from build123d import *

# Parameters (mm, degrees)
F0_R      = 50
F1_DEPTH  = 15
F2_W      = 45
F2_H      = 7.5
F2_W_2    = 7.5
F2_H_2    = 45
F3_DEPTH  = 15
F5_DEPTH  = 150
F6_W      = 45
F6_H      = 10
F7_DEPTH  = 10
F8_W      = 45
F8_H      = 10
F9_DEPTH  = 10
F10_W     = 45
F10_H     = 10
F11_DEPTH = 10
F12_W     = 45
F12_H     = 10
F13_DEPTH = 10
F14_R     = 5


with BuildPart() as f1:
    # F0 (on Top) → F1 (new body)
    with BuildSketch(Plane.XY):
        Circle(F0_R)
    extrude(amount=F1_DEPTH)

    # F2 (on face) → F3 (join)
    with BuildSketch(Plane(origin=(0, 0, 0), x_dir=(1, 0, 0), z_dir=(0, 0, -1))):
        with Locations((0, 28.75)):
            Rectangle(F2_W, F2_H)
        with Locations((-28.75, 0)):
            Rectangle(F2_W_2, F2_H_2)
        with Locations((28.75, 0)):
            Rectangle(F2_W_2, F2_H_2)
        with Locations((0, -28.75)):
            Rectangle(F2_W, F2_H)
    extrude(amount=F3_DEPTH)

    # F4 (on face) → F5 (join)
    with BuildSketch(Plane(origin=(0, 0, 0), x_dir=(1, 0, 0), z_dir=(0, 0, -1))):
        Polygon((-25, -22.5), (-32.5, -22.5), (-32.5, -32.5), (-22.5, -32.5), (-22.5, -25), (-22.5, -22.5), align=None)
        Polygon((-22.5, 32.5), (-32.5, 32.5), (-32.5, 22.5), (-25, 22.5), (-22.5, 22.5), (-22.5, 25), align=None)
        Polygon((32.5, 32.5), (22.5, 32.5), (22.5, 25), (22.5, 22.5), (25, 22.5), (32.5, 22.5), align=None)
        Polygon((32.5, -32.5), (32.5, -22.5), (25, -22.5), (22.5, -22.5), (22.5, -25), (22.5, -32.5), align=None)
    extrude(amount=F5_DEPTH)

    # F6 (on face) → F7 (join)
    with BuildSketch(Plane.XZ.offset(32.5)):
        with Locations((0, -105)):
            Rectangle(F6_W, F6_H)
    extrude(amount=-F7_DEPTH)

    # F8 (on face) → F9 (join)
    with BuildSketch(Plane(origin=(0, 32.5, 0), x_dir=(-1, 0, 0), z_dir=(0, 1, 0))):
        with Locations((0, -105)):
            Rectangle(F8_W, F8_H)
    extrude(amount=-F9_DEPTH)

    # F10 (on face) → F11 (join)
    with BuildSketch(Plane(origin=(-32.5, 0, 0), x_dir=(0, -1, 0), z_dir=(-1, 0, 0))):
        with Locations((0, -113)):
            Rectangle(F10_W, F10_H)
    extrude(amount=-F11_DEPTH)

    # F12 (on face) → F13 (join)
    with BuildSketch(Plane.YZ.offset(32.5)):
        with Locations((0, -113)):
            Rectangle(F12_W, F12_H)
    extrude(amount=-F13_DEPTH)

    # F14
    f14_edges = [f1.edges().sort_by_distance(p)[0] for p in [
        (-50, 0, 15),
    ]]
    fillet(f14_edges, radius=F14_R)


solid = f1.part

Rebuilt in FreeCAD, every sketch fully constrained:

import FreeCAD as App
import Part
import Sketcher
Q = App.Units.Quantity


def edges_at(feature, points):
    """Names of the edges that pass closest to the given points."""
    edges = feature.Shape.Edges
    near = lambda p: min(range(len(edges)), key=lambda i: edges[i].distToShape(Part.Vertex(*p))[0])
    return sorted({f"Edge{near(p) + 1}" for p in points})

doc = App.newDocument("Part")
body = doc.addObject("PartDesign::Body", "Body")

# Sketch on XY plane
sketch1 = body.newObject("Sketcher::SketchObject", "Sketch")
sketch1.AttachmentSupport = (doc.getObject("XY_Plane"), [""])
sketch1.MapMode = "FlatFace"
sketch1.addGeometry(Part.Circle(App.Vector(0, 0, 0), App.Vector(0, 0, 1), 50), False)
sketch1.addConstraint([
    Sketcher.Constraint("Coincident", 0, 3, -1, 1),
    Sketcher.Constraint("Diameter", 0, Q("100 mm")),
])
pad1 = body.newObject("PartDesign::Pad", "Pad")
pad1.Profile = sketch1
pad1.Length = 15

# Sketch on XY plane
sketch2 = body.newObject("Sketcher::SketchObject", "Sketch001")
sketch2.AttachmentSupport = (doc.getObject("XY_Plane"), [""])
sketch2.MapMode = "FlatFace"
sketch2.addGeometry([
    Part.LineSegment(App.Vector(-22, -32, 0), App.Vector(-22, -25, 0)),  # 0
    Part.LineSegment(App.Vector(-22, -25, 0), App.Vector(22, -25, 0)),  # 1
    Part.LineSegment(App.Vector(22, -25, 0), App.Vector(22, -32, 0)),  # 2
    Part.LineSegment(App.Vector(22, -32, 0), App.Vector(-22, -32, 0)),  # 3
    Part.LineSegment(App.Vector(-32, -22, 0), App.Vector(-32, 22, 0)),  # 4
    Part.LineSegment(App.Vector(-32, 22, 0), App.Vector(-25, 22, 0)),  # 5
    Part.LineSegment(App.Vector(-25, 22, 0), App.Vector(-25, -22, 0)),  # 6
    Part.LineSegment(App.Vector(-25, -22, 0), App.Vector(-32, -22, 0)),  # 7
    Part.LineSegment(App.Vector(25, -22, 0), App.Vector(25, 22, 0)),  # 8
    Part.LineSegment(App.Vector(25, 22, 0), App.Vector(32, 22, 0)),  # 9
    Part.LineSegment(App.Vector(32, 22, 0), App.Vector(32, -22, 0)),  # 10
    Part.LineSegment(App.Vector(32, -22, 0), App.Vector(25, -22, 0)),  # 11
    Part.LineSegment(App.Vector(-22, 25, 0), App.Vector(-22, 32, 0)),  # 12
    Part.LineSegment(App.Vector(-22, 32, 0), App.Vector(22, 32, 0)),  # 13
    Part.LineSegment(App.Vector(22, 32, 0), App.Vector(22, 25, 0)),  # 14
    Part.LineSegment(App.Vector(22, 25, 0), App.Vector(-22, 25, 0)),  # 15
], False)
sketch2.addConstraint([
    Sketcher.Constraint("Coincident", 0, 2, 1, 1),
    Sketcher.Constraint("Coincident", 1, 2, 2, 1),
    Sketcher.Constraint("Coincident", 2, 2, 3, 1),
    Sketcher.Constraint("Coincident", 3, 2, 0, 1),
    Sketcher.Constraint("Coincident", 4, 2, 5, 1),
    Sketcher.Constraint("Coincident", 5, 2, 6, 1),
    Sketcher.Constraint("Coincident", 6, 2, 7, 1),
    Sketcher.Constraint("Coincident", 7, 2, 4, 1),
    Sketcher.Constraint("Coincident", 8, 2, 9, 1),
    Sketcher.Constraint("Coincident", 9, 2, 10, 1),
    Sketcher.Constraint("Coincident", 10, 2, 11, 1),
    Sketcher.Constraint("Coincident", 11, 2, 8, 1),
    Sketcher.Constraint("Coincident", 12, 2, 13, 1),
    Sketcher.Constraint("Coincident", 13, 2, 14, 1),
    Sketcher.Constraint("Coincident", 14, 2, 15, 1),
    Sketcher.Constraint("Coincident", 15, 2, 12, 1),
    Sketcher.Constraint("Vertical", 0),
    Sketcher.Constraint("Horizontal", 1),
    Sketcher.Constraint("Vertical", 2),
    Sketcher.Constraint("Horizontal", 3),
    Sketcher.Constraint("Vertical", 4),
    Sketcher.Constraint("Horizontal", 5),
    Sketcher.Constraint("Vertical", 6),
    Sketcher.Constraint("Horizontal", 7),
    Sketcher.Constraint("Vertical", 8),
    Sketcher.Constraint("Horizontal", 9),
    Sketcher.Constraint("Vertical", 10),
    Sketcher.Constraint("Horizontal", 11),
    Sketcher.Constraint("Vertical", 12),
    Sketcher.Constraint("Horizontal", 13),
    Sketcher.Constraint("Vertical", 14),
    Sketcher.Constraint("Horizontal", 15),
    Sketcher.Constraint("Symmetric", 6, 2, 8, 2, -1, 1),
    Sketcher.Constraint("Symmetric", 4, 2, 10, 2, -1, 1),
    Sketcher.Constraint("Symmetric", 2, 2, 12, 2, -1, 1),
    Sketcher.Constraint("Symmetric", 0, 2, 14, 2, -1, 1),
    Sketcher.Constraint("Horizontal", 5, 2, 8, 2),
    Sketcher.Constraint("Vertical", 3, 2, 12, 2),
    Sketcher.Constraint("Equal", 11, 0),
    Sketcher.Constraint("Equal", 15, 4),
    Sketcher.Constraint("DistanceX", 1, 1, 1, 2, Q("45 mm")),
    Sketcher.Constraint("DistanceX", 5, 1, 5, 2, Q("7.5 mm")),
    Sketcher.Constraint("DistanceY", 0, 2, -1, 1, Q("25 mm")),
    Sketcher.Constraint("DistanceX", 5, 2, -1, 1, Q("25 mm")),
])
pad2 = body.newObject("PartDesign::Pad", "Pad001")
pad2.Profile = sketch2
pad2.Length = 15
pad2.Reversed = True

# Sketch on XY plane
sketch3 = body.newObject("Sketcher::SketchObject", "Sketch002")
sketch3.AttachmentSupport = (doc.getObject("XY_Plane"), [""])
sketch3.MapMode = "FlatFace"
sketch3.addGeometry([
    Part.LineSegment(App.Vector(-32, 22, 0), App.Vector(-32, 32, 0)),  # 0
    Part.LineSegment(App.Vector(-32, 32, 0), App.Vector(-22, 32, 0)),  # 1
    Part.LineSegment(App.Vector(-22, 32, 0), App.Vector(-22, 22, 0)),  # 2
    Part.LineSegment(App.Vector(-22, 22, 0), App.Vector(-32, 22, 0)),  # 3
    Part.LineSegment(App.Vector(-22, -32, 0), App.Vector(-32, -32, 0)),  # 4
    Part.LineSegment(App.Vector(-32, -32, 0), App.Vector(-32, -22, 0)),  # 5
    Part.LineSegment(App.Vector(-32, -22, 0), App.Vector(-22, -22, 0)),  # 6
    Part.LineSegment(App.Vector(-22, -22, 0), App.Vector(-22, -32, 0)),  # 7
    Part.LineSegment(App.Vector(32, -32, 0), App.Vector(22, -32, 0)),  # 8
    Part.LineSegment(App.Vector(22, -32, 0), App.Vector(22, -22, 0)),  # 9
    Part.LineSegment(App.Vector(22, -22, 0), App.Vector(32, -22, 0)),  # 10
    Part.LineSegment(App.Vector(32, -22, 0), App.Vector(32, -32, 0)),  # 11
    Part.LineSegment(App.Vector(32, 32, 0), App.Vector(32, 22, 0)),  # 12
    Part.LineSegment(App.Vector(32, 22, 0), App.Vector(22, 22, 0)),  # 13
    Part.LineSegment(App.Vector(22, 22, 0), App.Vector(22, 32, 0)),  # 14
    Part.LineSegment(App.Vector(22, 32, 0), App.Vector(32, 32, 0)),  # 15
], False)
sketch3.addConstraint([
    Sketcher.Constraint("Coincident", 0, 2, 1, 1),
    Sketcher.Constraint("Coincident", 1, 2, 2, 1),
    Sketcher.Constraint("Coincident", 2, 2, 3, 1),
    Sketcher.Constraint("Coincident", 3, 2, 0, 1),
    Sketcher.Constraint("Coincident", 4, 2, 5, 1),
    Sketcher.Constraint("Coincident", 5, 2, 6, 1),
    Sketcher.Constraint("Coincident", 6, 2, 7, 1),
    Sketcher.Constraint("Coincident", 7, 2, 4, 1),
    Sketcher.Constraint("Coincident", 8, 2, 9, 1),
    Sketcher.Constraint("Coincident", 9, 2, 10, 1),
    Sketcher.Constraint("Coincident", 10, 2, 11, 1),
    Sketcher.Constraint("Coincident", 11, 2, 8, 1),
    Sketcher.Constraint("Coincident", 12, 2, 13, 1),
    Sketcher.Constraint("Coincident", 13, 2, 14, 1),
    Sketcher.Constraint("Coincident", 14, 2, 15, 1),
    Sketcher.Constraint("Coincident", 15, 2, 12, 1),
    Sketcher.Constraint("Vertical", 0),
    Sketcher.Constraint("Horizontal", 1),
    Sketcher.Constraint("Vertical", 2),
    Sketcher.Constraint("Horizontal", 3),
    Sketcher.Constraint("Horizontal", 4),
    Sketcher.Constraint("Vertical", 5),
    Sketcher.Constraint("Horizontal", 6),
    Sketcher.Constraint("Vertical", 7),
    Sketcher.Constraint("Horizontal", 8),
    Sketcher.Constraint("Vertical", 9),
    Sketcher.Constraint("Horizontal", 10),
    Sketcher.Constraint("Vertical", 11),
    Sketcher.Constraint("Vertical", 12),
    Sketcher.Constraint("Horizontal", 13),
    Sketcher.Constraint("Vertical", 14),
    Sketcher.Constraint("Horizontal", 15),
    Sketcher.Constraint("Symmetric", 1, 2, 8, 2, -1, 1),
    Sketcher.Constraint("Symmetric", 3, 2, 10, 2, -1, 1),
    Sketcher.Constraint("Symmetric", 5, 2, 12, 2, -1, 1),
    Sketcher.Constraint("Symmetric", 7, 2, 14, 2, -1, 1),
    Sketcher.Constraint("Symmetric", 7, 2, 8, 2, -2),
    Sketcher.Constraint("Symmetric", 5, 2, 10, 2, -2),
    Sketcher.Constraint("Equal", 15, 0),
    Sketcher.Constraint("DistanceX", 1, 1, 1, 2, Q("10 mm")),
    Sketcher.Constraint("DistanceY", 4, 2, 3, 2, Q("55 mm")),
    Sketcher.Constraint("DistanceX", 7, 2, 8, 2, Q("45 mm")),
])
pad3 = body.newObject("PartDesign::Pad", "Pad002")
pad3.Profile = sketch3
pad3.Length = 150
pad3.Reversed = True

# Sketch on XZ plane
sketch4 = body.newObject("Sketcher::SketchObject", "Sketch003")
sketch4.AttachmentSupport = (doc.getObject("XZ_Plane"), [""])
sketch4.MapMode = "FlatFace"
sketch4.AttachmentOffset = App.Placement(App.Vector(0, 0, 32.5), App.Rotation())
sketch4.addGeometry([
    Part.LineSegment(App.Vector(-22, -100, 0), App.Vector(-22, -110, 0)),
    Part.LineSegment(App.Vector(-22, -110, 0), App.Vector(22, -110, 0)),
    Part.LineSegment(App.Vector(22, -110, 0), App.Vector(22, -100, 0)),
    Part.LineSegment(App.Vector(22, -100, 0), App.Vector(-22, -100, 0)),
], False)
sketch4.addConstraint([
    Sketcher.Constraint("Coincident", 0, 2, 1, 1),
    Sketcher.Constraint("Coincident", 1, 2, 2, 1),
    Sketcher.Constraint("Coincident", 2, 2, 3, 1),
    Sketcher.Constraint("Coincident", 3, 2, 0, 1),
    Sketcher.Constraint("Vertical", 0),
    Sketcher.Constraint("Horizontal", 1),
    Sketcher.Constraint("Vertical", 2),
    Sketcher.Constraint("Horizontal", 3),
    Sketcher.Constraint("DistanceX", 1, 1, 1, 2, Q("45 mm")),
    Sketcher.Constraint("DistanceY", 0, 2, 0, 1, Q("10 mm")),
    Sketcher.Constraint("DistanceY", 0, 2, -1, 1, Q("110 mm")),
    Sketcher.Constraint("DistanceX", 0, 2, -1, 1, Q("22.5 mm")),
])
pad4 = body.newObject("PartDesign::Pad", "Pad003")
pad4.Profile = sketch4
pad4.Length = 10
pad4.Reversed = True

# Sketch on XZ plane
sketch5 = body.newObject("Sketcher::SketchObject", "Sketch004")
sketch5.AttachmentSupport = (doc.getObject("XZ_Plane"), [""])
sketch5.MapMode = "FlatFace"
sketch5.AttachmentOffset = App.Placement(App.Vector(0, 0, -32.5), App.Rotation())
sketch5.addGeometry([
    Part.LineSegment(App.Vector(22, -100, 0), App.Vector(22, -110, 0)),
    Part.LineSegment(App.Vector(22, -110, 0), App.Vector(-22, -110, 0)),
    Part.LineSegment(App.Vector(-22, -110, 0), App.Vector(-22, -100, 0)),
    Part.LineSegment(App.Vector(-22, -100, 0), App.Vector(22, -100, 0)),
], False)
sketch5.addConstraint([
    Sketcher.Constraint("Coincident", 0, 2, 1, 1),
    Sketcher.Constraint("Coincident", 1, 2, 2, 1),
    Sketcher.Constraint("Coincident", 2, 2, 3, 1),
    Sketcher.Constraint("Coincident", 3, 2, 0, 1),
    Sketcher.Constraint("Vertical", 0),
    Sketcher.Constraint("Horizontal", 1),
    Sketcher.Constraint("Vertical", 2),
    Sketcher.Constraint("Horizontal", 3),
    Sketcher.Constraint("DistanceX", 1, 2, 1, 1, Q("45 mm")),
    Sketcher.Constraint("DistanceY", 0, 2, 0, 1, Q("10 mm")),
    Sketcher.Constraint("DistanceY", 0, 2, -1, 1, Q("110 mm")),
    Sketcher.Constraint("DistanceX", -1, 1, 0, 2, Q("22.5 mm")),
])
pad5 = body.newObject("PartDesign::Pad", "Pad004")
pad5.Profile = sketch5
pad5.Length = 10

# Sketch on YZ plane
sketch6 = body.newObject("Sketcher::SketchObject", "Sketch005")
sketch6.AttachmentSupport = (doc.getObject("YZ_Plane"), [""])
sketch6.MapMode = "FlatFace"
sketch6.AttachmentOffset = App.Placement(App.Vector(0, 0, -32.5), App.Rotation())
sketch6.addGeometry([
    Part.LineSegment(App.Vector(22, -108, 0), App.Vector(22, -118, 0)),
    Part.LineSegment(App.Vector(22, -118, 0), App.Vector(-22, -118, 0)),
    Part.LineSegment(App.Vector(-22, -118, 0), App.Vector(-22, -108, 0)),
    Part.LineSegment(App.Vector(-22, -108, 0), App.Vector(22, -108, 0)),
], False)
sketch6.addConstraint([
    Sketcher.Constraint("Coincident", 0, 2, 1, 1),
    Sketcher.Constraint("Coincident", 1, 2, 2, 1),
    Sketcher.Constraint("Coincident", 2, 2, 3, 1),
    Sketcher.Constraint("Coincident", 3, 2, 0, 1),
    Sketcher.Constraint("Vertical", 0),
    Sketcher.Constraint("Horizontal", 1),
    Sketcher.Constraint("Vertical", 2),
    Sketcher.Constraint("Horizontal", 3),
    Sketcher.Constraint("DistanceX", 1, 2, 1, 1, Q("45 mm")),
    Sketcher.Constraint("DistanceY", 0, 2, 0, 1, Q("10 mm")),
    Sketcher.Constraint("DistanceY", 0, 2, -1, 1, Q("118 mm")),
    Sketcher.Constraint("DistanceX", -1, 1, 0, 2, Q("22.5 mm")),
])
pad6 = body.newObject("PartDesign::Pad", "Pad005")
pad6.Profile = sketch6
pad6.Length = 10

# Sketch on YZ plane
sketch7 = body.newObject("Sketcher::SketchObject", "Sketch006")
sketch7.AttachmentSupport = (doc.getObject("YZ_Plane"), [""])
sketch7.MapMode = "FlatFace"
sketch7.AttachmentOffset = App.Placement(App.Vector(0, 0, 32.5), App.Rotation())
sketch7.addGeometry([
    Part.LineSegment(App.Vector(-22, -108, 0), App.Vector(-22, -118, 0)),
    Part.LineSegment(App.Vector(-22, -118, 0), App.Vector(22, -118, 0)),
    Part.LineSegment(App.Vector(22, -118, 0), App.Vector(22, -108, 0)),
    Part.LineSegment(App.Vector(22, -108, 0), App.Vector(-22, -108, 0)),
], False)
sketch7.addConstraint([
    Sketcher.Constraint("Coincident", 0, 2, 1, 1),
    Sketcher.Constraint("Coincident", 1, 2, 2, 1),
    Sketcher.Constraint("Coincident", 2, 2, 3, 1),
    Sketcher.Constraint("Coincident", 3, 2, 0, 1),
    Sketcher.Constraint("Vertical", 0),
    Sketcher.Constraint("Horizontal", 1),
    Sketcher.Constraint("Vertical", 2),
    Sketcher.Constraint("Horizontal", 3),
    Sketcher.Constraint("DistanceX", 1, 1, 1, 2, Q("45 mm")),
    Sketcher.Constraint("DistanceY", 0, 2, 0, 1, Q("10 mm")),
    Sketcher.Constraint("DistanceY", 0, 2, -1, 1, Q("118 mm")),
    Sketcher.Constraint("DistanceX", 0, 2, -1, 1, Q("22.5 mm")),
])
pad7 = body.newObject("PartDesign::Pad", "Pad006")
pad7.Profile = sketch7
pad7.Length = 10
pad7.Reversed = True
doc.recompute()

fillet = body.newObject("PartDesign::Fillet", "Fillet")
fillet.Base = (pad7, edges_at(pad7, [(-50, 0, 15)]))
fillet.Radius = 5

doc.recompute()
